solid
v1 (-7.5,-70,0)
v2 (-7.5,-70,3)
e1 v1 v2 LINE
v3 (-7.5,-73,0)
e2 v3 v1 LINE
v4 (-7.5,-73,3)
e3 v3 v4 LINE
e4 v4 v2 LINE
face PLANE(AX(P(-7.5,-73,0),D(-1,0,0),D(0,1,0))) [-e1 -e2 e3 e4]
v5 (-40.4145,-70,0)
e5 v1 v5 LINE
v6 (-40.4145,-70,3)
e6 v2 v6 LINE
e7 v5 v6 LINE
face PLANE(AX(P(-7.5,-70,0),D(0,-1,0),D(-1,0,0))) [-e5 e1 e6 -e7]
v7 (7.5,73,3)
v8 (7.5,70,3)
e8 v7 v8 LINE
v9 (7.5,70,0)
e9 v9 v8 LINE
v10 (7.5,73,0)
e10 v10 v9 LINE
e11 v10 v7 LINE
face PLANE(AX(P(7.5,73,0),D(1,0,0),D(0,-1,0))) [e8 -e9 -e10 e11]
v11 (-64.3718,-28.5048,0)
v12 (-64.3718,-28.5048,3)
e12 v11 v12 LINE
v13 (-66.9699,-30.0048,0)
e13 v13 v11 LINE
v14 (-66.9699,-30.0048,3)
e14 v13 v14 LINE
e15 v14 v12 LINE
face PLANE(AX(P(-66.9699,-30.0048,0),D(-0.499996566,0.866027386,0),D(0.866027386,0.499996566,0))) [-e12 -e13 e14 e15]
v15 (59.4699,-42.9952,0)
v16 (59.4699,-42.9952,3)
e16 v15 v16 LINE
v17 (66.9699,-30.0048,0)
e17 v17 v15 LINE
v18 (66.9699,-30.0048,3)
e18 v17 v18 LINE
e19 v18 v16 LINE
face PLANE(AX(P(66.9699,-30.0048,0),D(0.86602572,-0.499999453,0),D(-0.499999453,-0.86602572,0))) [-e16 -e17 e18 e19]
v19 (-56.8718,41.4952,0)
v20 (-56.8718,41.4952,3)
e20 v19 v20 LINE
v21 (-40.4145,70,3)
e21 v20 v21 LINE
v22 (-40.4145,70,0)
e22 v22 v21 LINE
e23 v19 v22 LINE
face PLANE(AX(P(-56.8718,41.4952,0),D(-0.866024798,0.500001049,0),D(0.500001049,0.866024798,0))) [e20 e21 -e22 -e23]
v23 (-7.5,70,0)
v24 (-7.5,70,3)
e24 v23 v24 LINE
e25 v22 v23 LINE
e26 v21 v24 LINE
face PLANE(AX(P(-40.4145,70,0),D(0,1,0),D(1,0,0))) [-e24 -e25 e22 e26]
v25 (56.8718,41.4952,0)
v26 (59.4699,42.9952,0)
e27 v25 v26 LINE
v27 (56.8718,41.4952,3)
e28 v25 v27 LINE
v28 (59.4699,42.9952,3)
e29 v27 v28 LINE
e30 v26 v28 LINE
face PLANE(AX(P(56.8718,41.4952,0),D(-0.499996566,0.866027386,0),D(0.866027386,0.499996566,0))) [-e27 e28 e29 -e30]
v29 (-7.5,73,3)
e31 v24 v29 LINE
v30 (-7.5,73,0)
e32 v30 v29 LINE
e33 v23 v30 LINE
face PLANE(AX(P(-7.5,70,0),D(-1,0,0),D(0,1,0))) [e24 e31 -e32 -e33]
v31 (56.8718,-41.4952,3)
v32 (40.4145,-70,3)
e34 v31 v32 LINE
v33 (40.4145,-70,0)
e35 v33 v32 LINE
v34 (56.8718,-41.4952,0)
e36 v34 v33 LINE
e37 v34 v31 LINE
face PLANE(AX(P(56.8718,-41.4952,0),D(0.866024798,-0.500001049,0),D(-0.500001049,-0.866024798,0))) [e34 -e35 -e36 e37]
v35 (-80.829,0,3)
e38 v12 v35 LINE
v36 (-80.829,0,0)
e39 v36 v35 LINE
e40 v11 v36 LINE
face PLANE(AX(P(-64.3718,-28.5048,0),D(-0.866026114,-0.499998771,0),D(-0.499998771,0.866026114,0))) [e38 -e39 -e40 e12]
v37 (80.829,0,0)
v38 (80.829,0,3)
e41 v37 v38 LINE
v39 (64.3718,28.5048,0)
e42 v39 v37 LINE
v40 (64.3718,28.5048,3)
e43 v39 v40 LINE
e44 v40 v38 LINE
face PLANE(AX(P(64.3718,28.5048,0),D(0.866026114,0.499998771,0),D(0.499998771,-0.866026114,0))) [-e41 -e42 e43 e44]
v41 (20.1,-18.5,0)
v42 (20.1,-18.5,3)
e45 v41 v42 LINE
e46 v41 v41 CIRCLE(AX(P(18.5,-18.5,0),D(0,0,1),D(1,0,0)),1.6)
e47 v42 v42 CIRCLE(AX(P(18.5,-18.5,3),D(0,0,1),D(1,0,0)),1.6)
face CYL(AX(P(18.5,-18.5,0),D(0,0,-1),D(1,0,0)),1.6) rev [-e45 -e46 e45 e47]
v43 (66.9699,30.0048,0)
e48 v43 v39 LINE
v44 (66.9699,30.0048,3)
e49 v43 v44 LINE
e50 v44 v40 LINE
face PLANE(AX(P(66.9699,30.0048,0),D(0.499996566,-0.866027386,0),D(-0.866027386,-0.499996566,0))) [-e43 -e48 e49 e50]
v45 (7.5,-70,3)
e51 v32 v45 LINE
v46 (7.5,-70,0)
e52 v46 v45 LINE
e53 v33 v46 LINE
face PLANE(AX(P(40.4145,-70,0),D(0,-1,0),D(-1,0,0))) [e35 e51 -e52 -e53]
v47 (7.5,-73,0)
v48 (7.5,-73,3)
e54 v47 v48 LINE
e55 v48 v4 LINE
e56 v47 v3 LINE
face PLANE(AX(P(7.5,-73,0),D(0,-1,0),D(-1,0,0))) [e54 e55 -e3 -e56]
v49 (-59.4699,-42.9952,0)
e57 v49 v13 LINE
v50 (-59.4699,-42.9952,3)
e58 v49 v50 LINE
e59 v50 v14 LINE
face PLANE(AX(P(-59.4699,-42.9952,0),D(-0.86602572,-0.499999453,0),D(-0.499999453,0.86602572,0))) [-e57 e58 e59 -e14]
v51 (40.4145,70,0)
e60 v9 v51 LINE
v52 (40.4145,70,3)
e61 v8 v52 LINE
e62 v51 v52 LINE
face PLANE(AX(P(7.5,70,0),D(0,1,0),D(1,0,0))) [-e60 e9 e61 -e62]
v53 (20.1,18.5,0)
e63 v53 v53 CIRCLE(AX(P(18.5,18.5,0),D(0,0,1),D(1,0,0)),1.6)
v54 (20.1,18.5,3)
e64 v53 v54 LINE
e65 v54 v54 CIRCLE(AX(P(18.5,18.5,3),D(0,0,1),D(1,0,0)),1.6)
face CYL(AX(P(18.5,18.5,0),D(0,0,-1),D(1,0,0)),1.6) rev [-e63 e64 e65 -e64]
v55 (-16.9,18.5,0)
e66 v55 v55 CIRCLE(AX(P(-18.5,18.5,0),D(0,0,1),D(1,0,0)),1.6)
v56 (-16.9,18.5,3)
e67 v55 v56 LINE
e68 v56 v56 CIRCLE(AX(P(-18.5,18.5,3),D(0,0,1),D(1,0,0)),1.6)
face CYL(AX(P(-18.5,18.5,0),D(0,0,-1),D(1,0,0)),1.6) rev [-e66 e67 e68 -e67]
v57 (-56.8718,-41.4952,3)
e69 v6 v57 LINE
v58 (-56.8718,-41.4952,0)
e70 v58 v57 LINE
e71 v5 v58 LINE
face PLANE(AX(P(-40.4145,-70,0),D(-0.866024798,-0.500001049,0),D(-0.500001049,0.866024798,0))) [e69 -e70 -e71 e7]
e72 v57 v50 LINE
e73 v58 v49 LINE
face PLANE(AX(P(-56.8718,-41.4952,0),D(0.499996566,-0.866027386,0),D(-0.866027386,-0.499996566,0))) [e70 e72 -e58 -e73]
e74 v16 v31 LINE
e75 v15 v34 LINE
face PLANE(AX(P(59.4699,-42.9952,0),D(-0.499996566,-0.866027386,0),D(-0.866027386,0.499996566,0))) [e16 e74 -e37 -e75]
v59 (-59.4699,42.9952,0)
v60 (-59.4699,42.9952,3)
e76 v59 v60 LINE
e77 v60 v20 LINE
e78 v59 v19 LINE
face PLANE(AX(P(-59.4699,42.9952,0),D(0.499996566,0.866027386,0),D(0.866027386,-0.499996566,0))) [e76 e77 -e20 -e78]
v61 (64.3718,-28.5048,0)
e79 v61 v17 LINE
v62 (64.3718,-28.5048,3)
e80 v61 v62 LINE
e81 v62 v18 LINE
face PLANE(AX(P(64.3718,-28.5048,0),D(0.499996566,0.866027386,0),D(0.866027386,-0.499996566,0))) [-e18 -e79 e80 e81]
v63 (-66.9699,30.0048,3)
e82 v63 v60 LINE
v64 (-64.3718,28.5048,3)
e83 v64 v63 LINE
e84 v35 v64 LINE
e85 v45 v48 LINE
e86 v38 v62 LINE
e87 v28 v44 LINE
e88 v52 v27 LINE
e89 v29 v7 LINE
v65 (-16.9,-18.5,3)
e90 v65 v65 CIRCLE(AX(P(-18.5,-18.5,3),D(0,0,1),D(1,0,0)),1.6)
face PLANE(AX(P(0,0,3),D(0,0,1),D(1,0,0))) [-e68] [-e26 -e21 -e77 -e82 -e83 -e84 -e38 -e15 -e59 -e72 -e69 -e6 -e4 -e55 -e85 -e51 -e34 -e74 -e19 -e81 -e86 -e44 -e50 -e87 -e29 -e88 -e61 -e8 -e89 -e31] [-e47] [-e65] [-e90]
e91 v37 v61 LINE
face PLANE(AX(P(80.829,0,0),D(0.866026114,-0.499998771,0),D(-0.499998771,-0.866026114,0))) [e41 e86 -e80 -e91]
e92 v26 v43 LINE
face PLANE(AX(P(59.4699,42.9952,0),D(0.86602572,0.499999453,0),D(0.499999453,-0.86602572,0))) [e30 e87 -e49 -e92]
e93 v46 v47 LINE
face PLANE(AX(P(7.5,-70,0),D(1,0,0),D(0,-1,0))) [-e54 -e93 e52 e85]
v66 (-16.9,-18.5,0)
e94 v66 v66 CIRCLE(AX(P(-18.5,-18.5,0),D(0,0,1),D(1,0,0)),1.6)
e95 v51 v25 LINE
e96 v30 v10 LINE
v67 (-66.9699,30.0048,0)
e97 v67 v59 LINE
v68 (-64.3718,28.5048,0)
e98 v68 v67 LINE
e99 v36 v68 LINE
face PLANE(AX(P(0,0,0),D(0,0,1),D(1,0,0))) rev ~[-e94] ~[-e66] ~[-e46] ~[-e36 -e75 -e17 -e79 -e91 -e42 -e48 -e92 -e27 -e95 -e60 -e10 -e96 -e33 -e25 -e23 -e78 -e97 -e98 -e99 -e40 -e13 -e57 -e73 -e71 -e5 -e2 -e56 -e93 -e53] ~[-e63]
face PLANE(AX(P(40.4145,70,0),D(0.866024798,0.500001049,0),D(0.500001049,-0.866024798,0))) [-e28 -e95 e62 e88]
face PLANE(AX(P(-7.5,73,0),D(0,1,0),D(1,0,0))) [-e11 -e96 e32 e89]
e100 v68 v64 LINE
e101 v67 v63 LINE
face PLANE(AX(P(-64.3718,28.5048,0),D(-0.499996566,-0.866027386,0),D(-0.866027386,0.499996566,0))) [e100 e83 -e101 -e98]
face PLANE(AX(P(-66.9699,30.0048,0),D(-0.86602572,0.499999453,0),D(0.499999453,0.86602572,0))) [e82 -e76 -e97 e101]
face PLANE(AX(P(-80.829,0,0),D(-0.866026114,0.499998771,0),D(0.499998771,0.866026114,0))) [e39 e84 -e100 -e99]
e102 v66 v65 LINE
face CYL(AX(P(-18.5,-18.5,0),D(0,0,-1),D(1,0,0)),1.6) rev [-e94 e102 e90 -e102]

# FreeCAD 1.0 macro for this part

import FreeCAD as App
import Part
import Sketcher
Q = App.Units.Quantity

doc = App.newDocument("Part")
body = doc.addObject("PartDesign::Body", "Body")

sketch1 = body.newObject("Sketcher::SketchObject", "Sketch")
sketch1.AttachmentSupport = (doc.getObject("XY_Plane"), [""])
sketch1.MapMode = "FlatFace"
sketch1.addGeometry(Part.LineSegment(App.Vector(7.5, 73, 0), App.Vector(-7.5, 73, 0)), False)
sketch1.addGeometry(Part.LineSegment(App.Vector(-7.5, 73, 0), App.Vector(-7.5, 70, 0)), False)
sketch1.addGeometry(Part.LineSegment(App.Vector(-7.5, 70, 0), App.Vector(-40.4145, 70, 0)), False)
sketch1.addGeometry(Part.LineSegment(App.Vector(-40.4145, 70, 0), App.Vector(-56.8718, 41.4952, 0)), False)
sketch1.addGeometry(Part.LineSegment(App.Vector(-56.8718, 41.4952, 0), App.Vector(-59.4699, 42.9952, 0)), False)
sketch1.addGeometry(Part.LineSegment(App.Vector(-59.4699, 42.9952, 0), App.Vector(-66.9699, 30.0048, 0)), False)
sketch1.addGeometry(Part.LineSegment(App.Vector(-66.9699, 30.0048, 0), App.Vector(-64.3718, 28.5048, 0)), False)
sketch1.addGeometry(Part.LineSegment(App.Vector(-64.3718, 28.5048, 0), App.Vector(-80.829, 0, 0)), False)
sketch1.addGeometry(Part.LineSegment(App.Vector(-80.829, 0, 0), App.Vector(-64.3718, -28.5048, 0)), False)
sketch1.addGeometry(Part.LineSegment(App.Vector(-64.3718, -28.5048, 0), App.Vector(-66.9699, -30.0048, 0)), False)
sketch1.addGeometry(Part.LineSegment(App.Vector(-66.9699, -30.0048, 0), App.Vector(-59.4699, -42.9952, 0)), False)
sketch1.addGeometry(Part.LineSegment(App.Vector(-59.4699, -42.9952, 0), App.Vector(-56.8718, -41.4952, 0)), False)
sketch1.addGeometry(Part.LineSegment(App.Vector(-56.8718, -41.4952, 0), App.Vector(-40.4145, -70, 0)), False)
sketch1.addGeometry(Part.LineSegment(App.Vector(-40.4145, -70, 0), App.Vector(-7.5, -70, 0)), False)
sketch1.addGeometry(Part.LineSegment(App.Vector(-7.5, -70, 0), App.Vector(-7.5, -73, 0)), False)
sketch1.addGeometry(Part.LineSegment(App.Vector(-7.5, -73, 0), App.Vector(7.5, -73, 0)), False)
sketch1.addGeometry(Part.LineSegment(App.Vector(7.5, -73, 0), App.Vector(7.5, -70, 0)), False)
sketch1.addGeometry(Part.LineSegment(App.Vector(7.5, -70, 0), App.Vector(40.4145, -70, 0)), False)
sketch1.addGeometry(Part.LineSegment(App.Vector(40.4145, -70, 0), App.Vector(56.8718, -41.4952, 0)), False)
sketch1.addGeometry(Part.LineSegment(App.Vector(56.8718, -41.4952, 0), App.Vector(59.4699, -42.9952, 0)), False)
sketch1.addGeometry(Part.LineSegment(App.Vector(59.4699, -42.9952, 0), App.Vector(66.9699, -30.0048, 0)), False)
sketch1.addGeometry(Part.LineSegment(App.Vector(66.9699, -30.0048, 0), App.Vector(64.3718, -28.5048, 0)), False)
sketch1.addGeometry(Part.LineSegment(App.Vector(64.3718, -28.5048, 0), App.Vector(80.829, 0, 0)), False)
sketch1.addGeometry(Part.LineSegment(App.Vector(80.829, 0, 0), App.Vector(64.3718, 28.5048, 0)), False)
sketch1.addGeometry(Part.LineSegment(App.Vector(64.3718, 28.5048, 0), App.Vector(66.9699, 30.0048, 0)), False)
sketch1.addGeometry(Part.LineSegment(App.Vector(66.9699, 30.0048, 0), App.Vector(59.4699, 42.9952, 0)), False)
sketch1.addGeometry(Part.LineSegment(App.Vector(59.4699, 42.9952, 0), App.Vector(56.8718, 41.4952, 0)), False)
sketch1.addGeometry(Part.LineSegment(App.Vector(56.8718, 41.4952, 0), App.Vector(40.4145, 70, 0)), False)
sketch1.addGeometry(Part.LineSegment(App.Vector(40.4145, 70, 0), App.Vector(7.5, 70, 0)), False)
sketch1.addGeometry(Part.LineSegment(App.Vector(7.5, 70, 0), App.Vector(7.5, 73, 0)), False)
sketch1.addGeometry(Part.Circle(App.Vector(-18.5, -18.5, 0), App.Vector(0, 0, 1), 1.6), False)
sketch1.addGeometry(Part.Circle(App.Vector(18.5, -18.5, 0), App.Vector(0, 0, 1), 1.6), False)
sketch1.addGeometry(Part.Circle(App.Vector(-18.5, 18.5, 0), App.Vector(0, 0, 1), 1.6), False)
sketch1.addGeometry(Part.Circle(App.Vector(18.5, 18.5, 0), App.Vector(0, 0, 1), 1.6), False)
sketch1.addConstraint(Sketcher.Constraint("Coincident", 0, 2, 1, 1))
sketch1.addConstraint(Sketcher.Constraint("Coincident", 1, 2, 2, 1))
sketch1.addConstraint(Sketcher.Constraint("Coincident", 2, 2, 3, 1))
sketch1.addConstraint(Sketcher.Constraint("Coincident", 3, 2, 4, 1))
sketch1.addConstraint(Sketcher.Constraint("Coincident", 4, 2, 5, 1))
sketch1.addConstraint(Sketcher.Constraint("Coincident", 5, 2, 6, 1))
sketch1.addConstraint(Sketcher.Constraint("Coincident", 6, 2, 7, 1))
sketch1.addConstraint(Sketcher.Constraint("Coincident", 7, 2, 8, 1))
sketch1.addConstraint(Sketcher.Constraint("Coincident", 8, 2, 9, 1))
sketch1.addConstraint(Sketcher.Constraint("Coincident", 9, 2, 10, 1))
sketch1.addConstraint(Sketcher.Constraint("Coincident", 10, 2, 11, 1))
sketch1.addConstraint(Sketcher.Constraint("Coincident", 11, 2, 12, 1))
sketch1.addConstraint(Sketcher.Constraint("Coincident", 12, 2, 13, 1))
sketch1.addConstraint(Sketcher.Constraint("Coincident", 13, 2, 14, 1))
sketch1.addConstraint(Sketcher.Constraint("Coincident", 14, 2, 15, 1))
sketch1.addConstraint(Sketcher.Constraint("Coincident", 15, 2, 16, 1))
sketch1.addConstraint(Sketcher.Constraint("Coincident", 16, 2, 17, 1))
sketch1.addConstraint(Sketcher.Constraint("Coincident", 17, 2, 18, 1))
sketch1.addConstraint(Sketcher.Constraint("Coincident", 18, 2, 19, 1))
sketch1.addConstraint(Sketcher.Constraint("Coincident", 19, 2, 20, 1))
sketch1.addConstraint(Sketcher.Constraint("Coincident", 20, 2, 21, 1))
sketch1.addConstraint(Sketcher.Constraint("Coincident", 21, 2, 22, 1))
sketch1.addConstraint(Sketcher.Constraint("Coincident", 22, 2, 23, 1))
sketch1.addConstraint(Sketcher.Constraint("Coincident", 23, 2, 24, 1))
sketch1.addConstraint(Sketcher.Constraint("Coincident", 24, 2, 25, 1))
sketch1.addConstraint(Sketcher.Constraint("Coincident", 25, 2, 26, 1))
sketch1.addConstraint(Sketcher.Constraint("Coincident", 26, 2, 27, 1))
sketch1.addConstraint(Sketcher.Constraint("Coincident", 27, 2, 28, 1))
sketch1.addConstraint(Sketcher.Constraint("Coincident", 28, 2, 29, 1))
sketch1.addConstraint(Sketcher.Constraint("Coincident", 29, 2, 0, 1))
sketch1.addConstraint(Sketcher.Constraint("Horizontal", 0))
sketch1.addConstraint(Sketcher.Constraint("Vertical", 1))
sketch1.addConstraint(Sketcher.Constraint("Horizontal", 2))
sketch1.addConstraint(Sketcher.Constraint("Horizontal", 13))
sketch1.addConstraint(Sketcher.Constraint("Vertical", 14))
sketch1.addConstraint(Sketcher.Constraint("Horizontal", 15))
sketch1.addConstraint(Sketcher.Constraint("Vertical", 16))
sketch1.addConstraint(Sketcher.Constraint("Horizontal", 17))
sketch1.addConstraint(Sketcher.Constraint("Horizontal", 28))
sketch1.addConstraint(Sketcher.Constraint("Vertical", 29))
sketch1.addConstraint(Sketcher.Constraint("Equal", 30, 31))
sketch1.addConstraint(Sketcher.Constraint("Equal", 31, 32))
sketch1.addConstraint(Sketcher.Constraint("Equal", 32, 33))
sketch1.addConstraint(Sketcher.Constraint("Symmetric", 31, 3, 32, 3, -1, 1))
sketch1.addConstraint(Sketcher.Constraint("Symmetric", 30, 3, 33, 3, -1, 1))
sketch1.addConstraint(Sketcher.Constraint("Symmetric", 0, 2, 15, 2, -1, 1))
sketch1.addConstraint(Sketcher.Constraint("Symmetric", 2, 2, 17, 2, -1, 1))
sketch1.addConstraint(Sketcher.Constraint("Symmetric", 3, 2, 18, 2, -1, 1))
sketch1.addConstraint(Sketcher.Constraint("Symmetric", 4, 2, 19, 2, -1, 1))
sketch1.addConstraint(Sketcher.Constraint("Symmetric", 5, 2, 20, 2, -1, 1))
sketch1.addConstraint(Sketcher.Constraint("Symmetric", 6, 2, 21, 2, -1, 1))
sketch1.addConstraint(Sketcher.Constraint("Symmetric", 7, 2, 22, 2, -1, 1))
sketch1.addConstraint(Sketcher.Constraint("Symmetric", 8, 2, 23, 2, -1, 1))
sketch1.addConstraint(Sketcher.Constraint("Symmetric", 9, 2, 24, 2, -1, 1))
sketch1.addConstraint(Sketcher.Constraint("Symmetric", 10, 2, 25, 2, -1, 1))
sketch1.addConstraint(Sketcher.Constraint("Symmetric", 11, 2, 26, 2, -1, 1))
sketch1.addConstraint(Sketcher.Constraint("Symmetric", 12, 2, 27, 2, -1, 1))
sketch1.addConstraint(Sketcher.Constraint("Symmetric", 30, 3, 31, 3, -2))
sketch1.addConstraint(Sketcher.Constraint("Symmetric", 13, 2, 16, 2, -2))
sketch1.addConstraint(Sketcher.Constraint("Symmetric", 11, 2, 18, 2, -2))
sketch1.addConstraint(Sketcher.Constraint("Symmetric", 10, 2, 19, 2, -2))
sketch1.addConstraint(Sketcher.Constraint("Symmetric", 9, 2, 20, 2, -2))
sketch1.addConstraint(Sketcher.Constraint("Symmetric", 8, 2, 21, 2, -2))
sketch1.addConstraint(Sketcher.Constraint("PointOnObject", 7, 2, -1))
sketch1.addConstraint(Sketcher.Constraint("Perpendicular", 3, 4))
sketch1.addConstraint(Sketcher.Constraint("Perpendicular", 4, 5))
sketch1.addConstraint(Sketcher.Constraint("Perpendicular", 5, 6))
sketch1.addConstraint(Sketcher.Constraint("Perpendicular", 6, 7))
sketch1.addConstraint(Sketcher.Constraint("Perpendicular", 11, 12))
sketch1.addConstraint(Sketcher.Constraint("Vertical", 16, 2, 28, 2))
sketch1.addConstraint(Sketcher.Constraint("Equal", 4, 6))
sketch1.addConstraint(Sketcher.Constraint("Equal", 3, 7))
sketch1.addConstraint(Sketcher.Constraint("Diameter", 30, 3.2))
sketch1.addConstraint(Sketcher.Constraint("DistanceX", 0, 2, 0, 1, 15.0))
sketch1.addConstraint(Sketcher.Constraint("DistanceY", 1, 2, 1, 1, 3.0))
sketch1.addConstraint(Sketcher.Constraint("Distance", 4, 3.0))
sketch1.addConstraint(Sketcher.Constraint("Distance", 5, 15.0))
sketch1.addConstraint(Sketcher.Constraint("DistanceX", 30, 3, 31, 3, 37.0))
sketch1.addConstraint(Sketcher.Constraint("DistanceY", 30, 3, 32, 3, 37.0))
sketch1.addConstraint(Sketcher.Constraint("Angle", 3, Q("-120 deg")))
sketch1.addConstraint(Sketcher.Constraint("DistanceY", -1, 1, 0, 2, 73.0))
sketch1.addConstraint(Sketcher.Constraint("DistanceX", 4, 2, -1, 1, 59.47))
pad1 = body.newObject("PartDesign::Pad", "Pad")
pad1.Profile = sketch1
pad1.Length = 3

doc.recompute()
